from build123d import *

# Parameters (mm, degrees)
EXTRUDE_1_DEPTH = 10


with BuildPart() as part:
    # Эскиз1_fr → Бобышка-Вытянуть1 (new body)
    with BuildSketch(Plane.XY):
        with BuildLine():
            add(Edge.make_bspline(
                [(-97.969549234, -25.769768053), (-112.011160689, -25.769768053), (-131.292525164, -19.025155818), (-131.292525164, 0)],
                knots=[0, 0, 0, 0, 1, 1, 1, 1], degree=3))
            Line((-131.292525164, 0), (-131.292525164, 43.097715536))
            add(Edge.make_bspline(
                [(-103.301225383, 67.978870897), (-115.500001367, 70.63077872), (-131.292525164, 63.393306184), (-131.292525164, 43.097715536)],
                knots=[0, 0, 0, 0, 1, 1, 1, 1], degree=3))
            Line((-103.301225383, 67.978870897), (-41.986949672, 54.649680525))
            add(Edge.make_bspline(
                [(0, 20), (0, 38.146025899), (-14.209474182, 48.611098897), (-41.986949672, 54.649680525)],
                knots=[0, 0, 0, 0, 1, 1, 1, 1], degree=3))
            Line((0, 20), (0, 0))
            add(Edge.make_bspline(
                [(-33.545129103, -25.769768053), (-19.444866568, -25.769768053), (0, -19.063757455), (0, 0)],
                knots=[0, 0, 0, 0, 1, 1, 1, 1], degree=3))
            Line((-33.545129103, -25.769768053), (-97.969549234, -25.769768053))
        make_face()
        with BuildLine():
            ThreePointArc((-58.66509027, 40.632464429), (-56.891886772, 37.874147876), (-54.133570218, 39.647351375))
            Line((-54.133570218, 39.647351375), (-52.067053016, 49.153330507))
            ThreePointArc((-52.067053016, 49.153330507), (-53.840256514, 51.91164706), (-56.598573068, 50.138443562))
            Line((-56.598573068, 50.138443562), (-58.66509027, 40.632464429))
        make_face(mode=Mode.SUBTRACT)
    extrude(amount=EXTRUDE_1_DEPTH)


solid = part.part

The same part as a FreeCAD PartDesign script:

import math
import FreeCAD as App
import Part
import Sketcher
Q = App.Units.Quantity

doc = App.newDocument("Part")
body = doc.addObject("PartDesign::Body", "Body")

sketch1 = body.newObject("Sketcher::SketchObject", "Sketch")
sketch1.AttachmentSupport = (doc.getObject("XY_Plane"), [""])
sketch1.MapMode = "FlatFace"
sketch1.addGeometry([
    Part.BSplineCurve([App.Vector(-97.969549, -25.769768, 0), App.Vector(-112.011161, -25.769768, 0), App.Vector(-131.292525, -19.025156, 0), App.Vector(-131.292525, 0, 0)], [4, 4], [0, 1], False, 3, [1, 1, 1, 1], False),
    Part.LineSegment(App.Vector(-97.969549, -25.769768, 0), App.Vector(-33.545129, -25.769768, 0)),
    Part.BSplineCurve([App.Vector(-33.545129, -25.769768, 0), App.Vector(-19.444867, -25.769768, 0), App.Vector(0, -19.063757, 0), App.Vector(0, 0, 0)], [4, 4], [0, 1], False, 3, [1, 1, 1, 1], False),
    Part.LineSegment(App.Vector(0, 0, 0), App.Vector(0, 20, 0)),
    Part.BSplineCurve([App.Vector(0, 20, 0), App.Vector(0, 38.146026, 0), App.Vector(-14.209474, 48.611099, 0), App.Vector(-41.98695, 54.649681, 0)], [4, 4], [0, 1], False, 3, [1, 1, 1, 1], False),
    Part.LineSegment(App.Vector(-41.98695, 54.649681, 0), App.Vector(-103.301225, 67.978871, 0)),
    Part.BSplineCurve([App.Vector(-103.301225, 67.978871, 0), App.Vector(-115.500001, 70.630779, 0), App.Vector(-131.292525, 63.393306, 0), App.Vector(-131.292525, 43.097716, 0)], [4, 4], [0, 1], False, 3, [1, 1, 1, 1], False),
    Part.LineSegment(App.Vector(-131.292525, 43.097716, 0), App.Vector(-131.292525, 0, 0)),
    Part.LineSegment(App.Vector(-58.66509, 40.632464, 0), App.Vector(-56.598573, 50.138444, 0)),
    Part.ArcOfCircle(Part.Circle(App.Vector(-54.332813, 49.645887, 0), App.Vector(0, 0, 1), 2.318681), math.radians(-12.264774), math.radians(167.735226)),
    Part.LineSegment(App.Vector(-52.067053, 49.153331, 0), App.Vector(-54.13357, 39.647351, 0)),
    Part.ArcOfCircle(Part.Circle(App.Vector(-56.39933, 40.139908, 0), App.Vector(0, 0, 1), 2.318681), math.radians(167.735226), math.radians(347.735226)),
], False)
sketch1.addConstraint([
    Sketcher.Constraint("Block", 0),
    Sketcher.Constraint("Block", 2),
    Sketcher.Constraint("Block", 4),
    Sketcher.Constraint("Block", 6),
    Sketcher.Constraint("Coincident", 0, 1, 1, 1),
    Sketcher.Constraint("Coincident", 1, 2, 2, 1),
    Sketcher.Constraint("Coincident", 2, 2, 3, 1),
    Sketcher.Constraint("Coincident", 3, 2, 4, 1),
    Sketcher.Constraint("Coincident", 4, 2, 5, 1),
    Sketcher.Constraint("Coincident", 5, 2, 6, 1),
    Sketcher.Constraint("Coincident", 6, 2, 7, 1),
    Sketcher.Constraint("Coincident", 7, 2, 0, 2),
    Sketcher.Constraint("Coincident", 8, 2, 9, 2),
    Sketcher.Constraint("Coincident", 9, 1, 10, 1),
    Sketcher.Constraint("Coincident", 10, 2, 11, 2),
    Sketcher.Constraint("Coincident", 11, 1, 8, 1),
    Sketcher.Constraint("Radius", 9, Q("2.318681 mm")),
    Sketcher.Constraint("Radius", 11, Q("2.318681 mm")),
    Sketcher.Constraint("DistanceX", 11, 3, 1, 2, Q("22.854201 mm")),
    Sketcher.Constraint("DistanceY", -1, 1, 9, 1, Q("49.153331 mm")),
    Sketcher.Constraint("DistanceX", 10, 2, -1, 1, Q("54.13357 mm")),
    Sketcher.Constraint("DistanceY", -1, 1, 10, 2, Q("39.647351 mm")),
    Sketcher.Constraint("DistanceX", 11, 1, -1, 1, Q("58.66509 mm")),
    Sketcher.Constraint("DistanceY", 11, 3, 9, 3, Q("9.505979 mm")),
    Sketcher.Constraint("DistanceX", 8, 2, 9, 3, Q("2.26576 mm")),
    Sketcher.Constraint("Distance", 8, Q("9.728008 mm")),
])
pad1 = body.newObject("PartDesign::Pad", "Pad")
pad1.Profile = sketch1
pad1.Length = 10

doc.recompute()
